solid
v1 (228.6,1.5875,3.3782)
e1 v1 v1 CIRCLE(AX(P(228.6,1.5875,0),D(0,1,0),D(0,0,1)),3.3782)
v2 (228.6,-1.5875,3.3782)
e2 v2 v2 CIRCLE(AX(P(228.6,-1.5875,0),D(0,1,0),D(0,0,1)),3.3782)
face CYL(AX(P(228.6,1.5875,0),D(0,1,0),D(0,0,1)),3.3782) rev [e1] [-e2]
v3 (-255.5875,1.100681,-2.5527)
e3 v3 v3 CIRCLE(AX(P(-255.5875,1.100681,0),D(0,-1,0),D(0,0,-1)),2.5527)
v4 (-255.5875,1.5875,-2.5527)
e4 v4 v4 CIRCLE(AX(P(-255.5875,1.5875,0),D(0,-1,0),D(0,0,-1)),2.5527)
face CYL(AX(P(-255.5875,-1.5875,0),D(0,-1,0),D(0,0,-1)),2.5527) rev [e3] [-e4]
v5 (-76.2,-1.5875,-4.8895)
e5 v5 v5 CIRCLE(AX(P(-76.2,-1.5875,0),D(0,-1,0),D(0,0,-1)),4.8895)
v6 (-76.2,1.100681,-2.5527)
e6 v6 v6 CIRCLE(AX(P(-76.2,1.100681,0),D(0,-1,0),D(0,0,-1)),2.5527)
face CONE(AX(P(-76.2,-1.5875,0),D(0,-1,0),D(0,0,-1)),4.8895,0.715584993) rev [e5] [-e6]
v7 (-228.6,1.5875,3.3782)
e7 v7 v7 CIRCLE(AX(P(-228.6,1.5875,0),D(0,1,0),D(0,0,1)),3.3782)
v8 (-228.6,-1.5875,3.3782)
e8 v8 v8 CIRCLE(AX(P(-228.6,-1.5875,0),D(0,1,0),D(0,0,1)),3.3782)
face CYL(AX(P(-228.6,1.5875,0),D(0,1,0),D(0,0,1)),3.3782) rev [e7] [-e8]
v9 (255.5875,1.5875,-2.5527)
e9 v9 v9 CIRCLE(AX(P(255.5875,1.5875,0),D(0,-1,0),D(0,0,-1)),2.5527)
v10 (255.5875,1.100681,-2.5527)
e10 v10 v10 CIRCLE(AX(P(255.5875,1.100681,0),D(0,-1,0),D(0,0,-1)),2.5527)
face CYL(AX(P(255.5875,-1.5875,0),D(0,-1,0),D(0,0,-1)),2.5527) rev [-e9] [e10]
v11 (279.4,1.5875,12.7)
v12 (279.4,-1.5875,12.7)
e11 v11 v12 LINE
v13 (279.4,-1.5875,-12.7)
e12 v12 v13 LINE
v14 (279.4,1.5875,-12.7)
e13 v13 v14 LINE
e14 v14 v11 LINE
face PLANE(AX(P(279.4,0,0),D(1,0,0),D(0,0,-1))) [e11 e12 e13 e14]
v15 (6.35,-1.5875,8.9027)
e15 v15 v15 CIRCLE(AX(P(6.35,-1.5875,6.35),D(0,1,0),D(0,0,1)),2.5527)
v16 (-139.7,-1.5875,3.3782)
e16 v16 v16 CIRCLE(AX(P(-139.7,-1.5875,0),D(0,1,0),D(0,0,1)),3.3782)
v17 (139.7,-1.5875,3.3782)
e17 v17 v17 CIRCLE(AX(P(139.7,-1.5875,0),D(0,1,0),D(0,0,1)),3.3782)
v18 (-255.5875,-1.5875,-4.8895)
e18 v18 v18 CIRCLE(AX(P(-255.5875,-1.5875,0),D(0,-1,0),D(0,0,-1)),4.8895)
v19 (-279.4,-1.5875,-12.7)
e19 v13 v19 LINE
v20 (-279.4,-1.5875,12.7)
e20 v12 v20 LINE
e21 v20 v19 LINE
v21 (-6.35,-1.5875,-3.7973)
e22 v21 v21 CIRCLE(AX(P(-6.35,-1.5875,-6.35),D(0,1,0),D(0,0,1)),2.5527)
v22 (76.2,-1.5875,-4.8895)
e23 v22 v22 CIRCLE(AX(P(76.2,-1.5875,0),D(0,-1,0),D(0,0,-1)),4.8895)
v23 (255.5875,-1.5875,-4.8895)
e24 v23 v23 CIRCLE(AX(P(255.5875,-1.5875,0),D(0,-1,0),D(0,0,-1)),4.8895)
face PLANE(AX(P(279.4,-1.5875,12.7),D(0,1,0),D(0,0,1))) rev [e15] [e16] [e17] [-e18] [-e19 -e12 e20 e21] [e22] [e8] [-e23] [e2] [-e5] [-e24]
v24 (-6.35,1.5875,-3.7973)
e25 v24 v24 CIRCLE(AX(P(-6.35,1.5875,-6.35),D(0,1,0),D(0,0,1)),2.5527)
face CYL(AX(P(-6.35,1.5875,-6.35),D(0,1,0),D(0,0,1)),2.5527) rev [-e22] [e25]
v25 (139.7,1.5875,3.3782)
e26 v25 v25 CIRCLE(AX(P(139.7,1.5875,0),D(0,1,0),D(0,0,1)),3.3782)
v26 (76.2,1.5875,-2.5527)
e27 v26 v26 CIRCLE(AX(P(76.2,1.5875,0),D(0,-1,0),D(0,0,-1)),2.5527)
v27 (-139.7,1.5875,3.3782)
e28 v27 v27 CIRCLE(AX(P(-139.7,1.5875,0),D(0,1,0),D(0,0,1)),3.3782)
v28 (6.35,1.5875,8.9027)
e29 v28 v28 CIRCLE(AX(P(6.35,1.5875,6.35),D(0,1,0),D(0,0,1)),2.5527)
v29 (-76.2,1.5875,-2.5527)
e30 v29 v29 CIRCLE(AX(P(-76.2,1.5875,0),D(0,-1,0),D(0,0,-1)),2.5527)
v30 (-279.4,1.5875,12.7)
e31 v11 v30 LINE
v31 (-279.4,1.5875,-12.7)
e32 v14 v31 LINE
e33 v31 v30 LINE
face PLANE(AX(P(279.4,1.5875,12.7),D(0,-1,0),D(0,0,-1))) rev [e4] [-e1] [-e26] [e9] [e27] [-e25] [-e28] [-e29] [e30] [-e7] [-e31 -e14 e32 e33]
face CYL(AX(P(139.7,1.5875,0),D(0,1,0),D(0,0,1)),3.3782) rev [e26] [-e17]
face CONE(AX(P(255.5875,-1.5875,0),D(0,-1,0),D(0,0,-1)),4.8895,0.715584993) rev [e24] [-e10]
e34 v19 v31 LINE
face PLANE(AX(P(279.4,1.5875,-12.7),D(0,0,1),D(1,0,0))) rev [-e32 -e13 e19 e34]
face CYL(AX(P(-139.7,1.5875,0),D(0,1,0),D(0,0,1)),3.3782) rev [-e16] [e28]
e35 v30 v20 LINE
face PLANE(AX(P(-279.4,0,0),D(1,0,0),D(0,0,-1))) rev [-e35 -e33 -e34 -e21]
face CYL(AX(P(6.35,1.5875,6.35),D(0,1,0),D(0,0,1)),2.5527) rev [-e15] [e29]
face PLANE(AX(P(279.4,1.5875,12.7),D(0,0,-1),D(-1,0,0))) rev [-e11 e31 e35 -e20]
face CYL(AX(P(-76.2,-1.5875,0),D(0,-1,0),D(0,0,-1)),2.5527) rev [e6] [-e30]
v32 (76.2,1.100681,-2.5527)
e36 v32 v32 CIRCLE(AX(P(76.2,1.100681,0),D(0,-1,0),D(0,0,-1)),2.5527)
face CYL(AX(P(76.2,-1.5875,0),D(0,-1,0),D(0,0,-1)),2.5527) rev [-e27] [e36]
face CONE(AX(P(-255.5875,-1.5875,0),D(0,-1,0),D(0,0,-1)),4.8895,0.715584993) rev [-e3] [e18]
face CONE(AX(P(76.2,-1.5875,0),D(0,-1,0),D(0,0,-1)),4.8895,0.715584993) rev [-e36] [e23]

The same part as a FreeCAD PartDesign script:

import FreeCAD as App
import Part
import Sketcher
from FreeCAD import Vector
Q = App.Units.Quantity


def add_polygon(sketch, points):
    """Adds a closed chain of lines whose ends are joined by coincident constraints."""
    first, n = sketch.GeometryCount, len(points)
    for a, b in zip(points, points[1:] + points[:1]):
        sketch.addGeometry(Part.LineSegment(App.Vector(*a, 0), App.Vector(*b, 0)), False)
    for i in range(n):
        sketch.addConstraint(Sketcher.Constraint("Coincident", first + i, 2, first + (i + 1) % n, 1))

doc = App.newDocument("Part")
params = doc.addObject("Spreadsheet::Sheet", "Params")
for row, (alias, value) in enumerate([
    ("sketch1_height", "1 in"),
    ("sketch1_width", "0.125 in"),
    ("pad1_length", "22 in"),
    ("sketch2_diameter", "0.266 in"),
    ("hole_diameter", "0.266 in"),
    ("sketch3_diameter", "0.201 in"),
    ("hole2_diameter", "0.201 in"),
    ("sketch4_width", "0.125 in"),
    ("groove_angle", "360 deg"),
    ("linearpattern_pitch", "2 in"),
    ("linearpattern2_pitch", "186.441721 mm"),
    ("linearpattern3_pitch", "7.0625 in"),
    ("linearpattern4_pitch", "13.0625 in"),
    ("linearpattern5_pitch", "6 in"),
    ("linearpattern6_pitch", "160.643705 mm"),
    ("linearpattern7_pitch", "335.653966 mm"),
], start=1):
    params.set(f"A{row}", alias)
    params.set(f"B{row}", "=" + value)
    params.setAlias(f"B{row}", alias)

body = doc.addObject("PartDesign::Body", "Body")

sketch1 = body.newObject("Sketcher::SketchObject", "Sketch")
sketch1.AttachmentSupport = (doc.getObject("YZ_Plane"), [""])
sketch1.MapMode = "FlatFace"
add_polygon(sketch1, [(1.5875, 12.7), (-1.5875, 12.7), (-1.5875, -12.7), (1.5875, -12.7)])
sketch1.addConstraint(Sketcher.Constraint("Horizontal", 0))
sketch1.addConstraint(Sketcher.Constraint("Vertical", 1))
sketch1.addConstraint(Sketcher.Constraint("Horizontal", 2))
sketch1.addConstraint(Sketcher.Constraint("Vertical", 3))
sketch1.addConstraint(Sketcher.Constraint("Symmetric", 0, 2, 2, 2, -1, 1))
sketch1.addConstraint(Sketcher.Constraint("DistanceY", 1, 2, 1, 1, Q("1 in")))
sketch1.addConstraint(Sketcher.Constraint("DistanceX", 0, 2, 0, 1, Q("0.125 in")))
sketch1.setExpression("Constraints[9]", "Params.sketch1_height")
sketch1.setExpression("Constraints[10]", "Params.sketch1_width")
pad1 = body.newObject("PartDesign::Pad", "Pad")
pad1.Profile = sketch1
pad1.setExpression("Length", "Params.pad1_length")
pad1.Midplane = True

sketch2 = body.newObject("Sketcher::SketchObject", "Sketch001")
sketch2.AttachmentSupport = (doc.getObject("XZ_Plane"), [""])
sketch2.MapMode = "FlatFace"
sketch2.AttachmentOffset = App.Placement(Vector(0, 0, -0.0625 * 25.4), App.Rotation())
sketch2.addGeometry(Part.Circle(Vector(-139.7, 0, 0), Vector(0, 0, 1), 3.3782), False)
sketch2.addGeometry(Part.Circle(Vector(-228.6, 0, 0), Vector(0, 0, 1), 3.3782), False)
sketch2.addConstraint(Sketcher.Constraint("Equal", 0, 1))
sketch2.addConstraint(Sketcher.Constraint("PointOnObject", 0, 3, -1))
sketch2.addConstraint(Sketcher.Constraint("PointOnObject", 1, 3, -1))
sketch2.addConstraint(Sketcher.Constraint("Diameter", 0, Q("0.266 in")))
sketch2.addConstraint(Sketcher.Constraint("DistanceX", 1, 3, -1, 1, Q("9 in")))
sketch2.addConstraint(Sketcher.Constraint("DistanceX", 0, 3, -1, 1, Q("5.5 in")))
sketch2.setExpression("Constraints[3]", "Params.sketch2_diameter")
doc.recompute()
hole = body.newObject("PartDesign::Hole", "Hole")
hole.Profile = sketch2
hole.ThreadType = "None"
hole.setExpression("Diameter", "Params.hole_diameter")
hole.DepthType = "ThroughAll"
hole.Reversed = True
doc.recompute()

mirrored = body.newObject("PartDesign::Mirrored", "Mirrored")
mirrored.Originals = [hole]
mirrored.MirrorPlane = (doc.getObject("YZ_Plane"), [""])
body.Tip = mirrored

sketch3 = body.newObject("Sketcher::SketchObject", "Sketch002")
sketch3.AttachmentSupport = (doc.getObject("XZ_Plane"), [""])
sketch3.MapMode = "FlatFace"
sketch3.AttachmentOffset = App.Placement(Vector(0, 0, -0.0625 * 25.4), App.Rotation())
sketch3.addGeometry(Part.Circle(Vector(6.35, 6.35, 0), Vector(0, 0, 1), 2.5527), False)
sketch3.addGeometry(Part.Circle(Vector(-6.35, -6.35, 0), Vector(0, 0, 1), 2.5527), False)
sketch3.addConstraint(Sketcher.Constraint("Equal", 0, 1))
sketch3.addConstraint(Sketcher.Constraint("Symmetric", 0, 3, 1, 3, -1, 1))
sketch3.addConstraint(Sketcher.Constraint("Diameter", 0, Q("0.201 in")))
sketch3.addConstraint(Sketcher.Constraint("DistanceX", 1, 3, 0, 3, Q("0.5 in")))
sketch3.addConstraint(Sketcher.Constraint("DistanceY", 1, 3, 0, 3, Q("0.5 in")))
sketch3.setExpression("Constraints[2]", "Params.sketch3_diameter")
doc.recompute()
hole2 = body.newObject("PartDesign::Hole", "Hole001")
hole2.Profile = sketch3
hole2.ThreadType = "None"
hole2.setExpression("Diameter", "Params.hole2_diameter")
hole2.DepthType = "ThroughAll"
hole2.Reversed = True

sketch4 = body.newObject("Sketcher::SketchObject", "Sketch003")
sketch4.AttachmentSupport = (doc.getObject("YZ_Plane"), [""])
sketch4.MapMode = "FlatFace"
sketch4.AttachmentOffset = App.Placement(Vector(0, 0, -3 * 25.4), App.Rotation())
add_polygon(sketch4, [(1.5875, 0), (-1.5875, 0), (-1.5875, -4.8895), (1.100681, -2.5527), (1.5875, -2.5527)])
sketch4.addConstraint(Sketcher.Constraint("Horizontal", 0))
sketch4.addConstraint(Sketcher.Constraint("Vertical", 1))
sketch4.addConstraint(Sketcher.Constraint("Horizontal", 3))
sketch4.addConstraint(Sketcher.Constraint("Vertical", 4))
sketch4.addConstraint(Sketcher.Constraint("Symmetric", 0, 2, 4, 2, -1, 1))
sketch4.addConstraint(Sketcher.Constraint("Angle", 2, Q("41 deg")))
sketch4.addConstraint(Sketcher.Constraint("DistanceX", 0, 2, 0, 1, Q("0.125 in")))
sketch4.addConstraint(Sketcher.Constraint("DistanceY", 1, 2, 1, 1, Q("0.1925 in")))
sketch4.addConstraint(Sketcher.Constraint("DistanceY", 4, 1, 4, 2, Q("0.1005 in")))
sketch4.setExpression("Constraints[11]", "Params.sketch4_width")
groove = body.newObject("PartDesign::Groove", "Groove")
groove.Profile = sketch4
groove.ReferenceAxis = (sketch4, ["H_Axis"])
groove.setExpression("Angle", "Params.groove_angle")
doc.recompute()

linearpattern = body.newObject("PartDesign::LinearPattern", "LinearPattern")
linearpattern.Originals = [groove]
linearpattern.Direction = (doc.getObject("Z_Axis"), [""])
linearpattern.Mode = "offset"
linearpattern.setExpression("Offset", "Params.linearpattern_pitch")
linearpattern.Occurrences = 2
linearpattern.Reversed = True
body.Tip = linearpattern
doc.recompute()

datumline = body.newObject("PartDesign::Line", "DatumLine")
datumline.Placement = App.Placement(Vector(0, 0, 0), App.Rotation(Vector(0, 0, 1), Vector(-0.962163938, 0, -0.272471204)))
linearpattern2 = body.newObject("PartDesign::LinearPattern", "LinearPattern001")
linearpattern2.Originals = [groove]
linearpattern2.Direction = (datumline, [""])
linearpattern2.Mode = "offset"
linearpattern2.setExpression("Offset", "Params.linearpattern2_pitch")
linearpattern2.Occurrences = 2
body.Tip = linearpattern2
doc.recompute()

linearpattern3 = body.newObject("PartDesign::LinearPattern", "LinearPattern002")
linearpattern3.Originals = [groove]
linearpattern3.Direction = (doc.getObject("X_Axis"), [""])
linearpattern3.Mode = "offset"
linearpattern3.setExpression("Offset", "Params.linearpattern3_pitch")
linearpattern3.Occurrences = 2
linearpattern3.Reversed = True
body.Tip = linearpattern3
doc.recompute()

linearpattern4 = body.newObject("PartDesign::LinearPattern", "LinearPattern003")
linearpattern4.Originals = [groove]
linearpattern4.Direction = (doc.getObject("X_Axis"), [""])
linearpattern4.Mode = "offset"
linearpattern4.setExpression("Offset", "Params.linearpattern4_pitch")
linearpattern4.Occurrences = 2
body.Tip = linearpattern4
doc.recompute()

linearpattern5 = body.newObject("PartDesign::LinearPattern", "LinearPattern004")
linearpattern5.Originals = [groove]
linearpattern5.Direction = (doc.getObject("X_Axis"), [""])
linearpattern5.Mode = "offset"
linearpattern5.setExpression("Offset", "Params.linearpattern5_pitch")
linearpattern5.Occurrences = 2
body.Tip = linearpattern5
doc.recompute()

datumline2 = body.newObject("PartDesign::Line", "DatumLine001")
datumline2.Placement = App.Placement(Vector(0, 0, 0), App.Rotation(Vector(0, 0, 1), Vector(0.948683298, 0, -0.316227766)))
linearpattern6 = body.newObject("PartDesign::LinearPattern", "LinearPattern005")
linearpattern6.Originals = [groove]
linearpattern6.Direction = (datumline2, [""])
linearpattern6.Mode = "offset"
linearpattern6.setExpression("Offset", "Params.linearpattern6_pitch")
linearpattern6.Occurrences = 2
body.Tip = linearpattern6
doc.recompute()

datumline3 = body.newObject("PartDesign::Line", "DatumLine002")
datumline3.Placement = App.Placement(Vector(0, 0, 0), App.Rotation(Vector(0, 0, 1), Vector(0.988480796, 0, -0.151346342)))
linearpattern7 = body.newObject("PartDesign::LinearPattern", "LinearPattern006")
linearpattern7.Originals = [groove]
linearpattern7.Direction = (datumline3, [""])
linearpattern7.Mode = "offset"
linearpattern7.setExpression("Offset", "Params.linearpattern7_pitch")
linearpattern7.Occurrences = 2
body.Tip = linearpattern7

doc.recompute()
